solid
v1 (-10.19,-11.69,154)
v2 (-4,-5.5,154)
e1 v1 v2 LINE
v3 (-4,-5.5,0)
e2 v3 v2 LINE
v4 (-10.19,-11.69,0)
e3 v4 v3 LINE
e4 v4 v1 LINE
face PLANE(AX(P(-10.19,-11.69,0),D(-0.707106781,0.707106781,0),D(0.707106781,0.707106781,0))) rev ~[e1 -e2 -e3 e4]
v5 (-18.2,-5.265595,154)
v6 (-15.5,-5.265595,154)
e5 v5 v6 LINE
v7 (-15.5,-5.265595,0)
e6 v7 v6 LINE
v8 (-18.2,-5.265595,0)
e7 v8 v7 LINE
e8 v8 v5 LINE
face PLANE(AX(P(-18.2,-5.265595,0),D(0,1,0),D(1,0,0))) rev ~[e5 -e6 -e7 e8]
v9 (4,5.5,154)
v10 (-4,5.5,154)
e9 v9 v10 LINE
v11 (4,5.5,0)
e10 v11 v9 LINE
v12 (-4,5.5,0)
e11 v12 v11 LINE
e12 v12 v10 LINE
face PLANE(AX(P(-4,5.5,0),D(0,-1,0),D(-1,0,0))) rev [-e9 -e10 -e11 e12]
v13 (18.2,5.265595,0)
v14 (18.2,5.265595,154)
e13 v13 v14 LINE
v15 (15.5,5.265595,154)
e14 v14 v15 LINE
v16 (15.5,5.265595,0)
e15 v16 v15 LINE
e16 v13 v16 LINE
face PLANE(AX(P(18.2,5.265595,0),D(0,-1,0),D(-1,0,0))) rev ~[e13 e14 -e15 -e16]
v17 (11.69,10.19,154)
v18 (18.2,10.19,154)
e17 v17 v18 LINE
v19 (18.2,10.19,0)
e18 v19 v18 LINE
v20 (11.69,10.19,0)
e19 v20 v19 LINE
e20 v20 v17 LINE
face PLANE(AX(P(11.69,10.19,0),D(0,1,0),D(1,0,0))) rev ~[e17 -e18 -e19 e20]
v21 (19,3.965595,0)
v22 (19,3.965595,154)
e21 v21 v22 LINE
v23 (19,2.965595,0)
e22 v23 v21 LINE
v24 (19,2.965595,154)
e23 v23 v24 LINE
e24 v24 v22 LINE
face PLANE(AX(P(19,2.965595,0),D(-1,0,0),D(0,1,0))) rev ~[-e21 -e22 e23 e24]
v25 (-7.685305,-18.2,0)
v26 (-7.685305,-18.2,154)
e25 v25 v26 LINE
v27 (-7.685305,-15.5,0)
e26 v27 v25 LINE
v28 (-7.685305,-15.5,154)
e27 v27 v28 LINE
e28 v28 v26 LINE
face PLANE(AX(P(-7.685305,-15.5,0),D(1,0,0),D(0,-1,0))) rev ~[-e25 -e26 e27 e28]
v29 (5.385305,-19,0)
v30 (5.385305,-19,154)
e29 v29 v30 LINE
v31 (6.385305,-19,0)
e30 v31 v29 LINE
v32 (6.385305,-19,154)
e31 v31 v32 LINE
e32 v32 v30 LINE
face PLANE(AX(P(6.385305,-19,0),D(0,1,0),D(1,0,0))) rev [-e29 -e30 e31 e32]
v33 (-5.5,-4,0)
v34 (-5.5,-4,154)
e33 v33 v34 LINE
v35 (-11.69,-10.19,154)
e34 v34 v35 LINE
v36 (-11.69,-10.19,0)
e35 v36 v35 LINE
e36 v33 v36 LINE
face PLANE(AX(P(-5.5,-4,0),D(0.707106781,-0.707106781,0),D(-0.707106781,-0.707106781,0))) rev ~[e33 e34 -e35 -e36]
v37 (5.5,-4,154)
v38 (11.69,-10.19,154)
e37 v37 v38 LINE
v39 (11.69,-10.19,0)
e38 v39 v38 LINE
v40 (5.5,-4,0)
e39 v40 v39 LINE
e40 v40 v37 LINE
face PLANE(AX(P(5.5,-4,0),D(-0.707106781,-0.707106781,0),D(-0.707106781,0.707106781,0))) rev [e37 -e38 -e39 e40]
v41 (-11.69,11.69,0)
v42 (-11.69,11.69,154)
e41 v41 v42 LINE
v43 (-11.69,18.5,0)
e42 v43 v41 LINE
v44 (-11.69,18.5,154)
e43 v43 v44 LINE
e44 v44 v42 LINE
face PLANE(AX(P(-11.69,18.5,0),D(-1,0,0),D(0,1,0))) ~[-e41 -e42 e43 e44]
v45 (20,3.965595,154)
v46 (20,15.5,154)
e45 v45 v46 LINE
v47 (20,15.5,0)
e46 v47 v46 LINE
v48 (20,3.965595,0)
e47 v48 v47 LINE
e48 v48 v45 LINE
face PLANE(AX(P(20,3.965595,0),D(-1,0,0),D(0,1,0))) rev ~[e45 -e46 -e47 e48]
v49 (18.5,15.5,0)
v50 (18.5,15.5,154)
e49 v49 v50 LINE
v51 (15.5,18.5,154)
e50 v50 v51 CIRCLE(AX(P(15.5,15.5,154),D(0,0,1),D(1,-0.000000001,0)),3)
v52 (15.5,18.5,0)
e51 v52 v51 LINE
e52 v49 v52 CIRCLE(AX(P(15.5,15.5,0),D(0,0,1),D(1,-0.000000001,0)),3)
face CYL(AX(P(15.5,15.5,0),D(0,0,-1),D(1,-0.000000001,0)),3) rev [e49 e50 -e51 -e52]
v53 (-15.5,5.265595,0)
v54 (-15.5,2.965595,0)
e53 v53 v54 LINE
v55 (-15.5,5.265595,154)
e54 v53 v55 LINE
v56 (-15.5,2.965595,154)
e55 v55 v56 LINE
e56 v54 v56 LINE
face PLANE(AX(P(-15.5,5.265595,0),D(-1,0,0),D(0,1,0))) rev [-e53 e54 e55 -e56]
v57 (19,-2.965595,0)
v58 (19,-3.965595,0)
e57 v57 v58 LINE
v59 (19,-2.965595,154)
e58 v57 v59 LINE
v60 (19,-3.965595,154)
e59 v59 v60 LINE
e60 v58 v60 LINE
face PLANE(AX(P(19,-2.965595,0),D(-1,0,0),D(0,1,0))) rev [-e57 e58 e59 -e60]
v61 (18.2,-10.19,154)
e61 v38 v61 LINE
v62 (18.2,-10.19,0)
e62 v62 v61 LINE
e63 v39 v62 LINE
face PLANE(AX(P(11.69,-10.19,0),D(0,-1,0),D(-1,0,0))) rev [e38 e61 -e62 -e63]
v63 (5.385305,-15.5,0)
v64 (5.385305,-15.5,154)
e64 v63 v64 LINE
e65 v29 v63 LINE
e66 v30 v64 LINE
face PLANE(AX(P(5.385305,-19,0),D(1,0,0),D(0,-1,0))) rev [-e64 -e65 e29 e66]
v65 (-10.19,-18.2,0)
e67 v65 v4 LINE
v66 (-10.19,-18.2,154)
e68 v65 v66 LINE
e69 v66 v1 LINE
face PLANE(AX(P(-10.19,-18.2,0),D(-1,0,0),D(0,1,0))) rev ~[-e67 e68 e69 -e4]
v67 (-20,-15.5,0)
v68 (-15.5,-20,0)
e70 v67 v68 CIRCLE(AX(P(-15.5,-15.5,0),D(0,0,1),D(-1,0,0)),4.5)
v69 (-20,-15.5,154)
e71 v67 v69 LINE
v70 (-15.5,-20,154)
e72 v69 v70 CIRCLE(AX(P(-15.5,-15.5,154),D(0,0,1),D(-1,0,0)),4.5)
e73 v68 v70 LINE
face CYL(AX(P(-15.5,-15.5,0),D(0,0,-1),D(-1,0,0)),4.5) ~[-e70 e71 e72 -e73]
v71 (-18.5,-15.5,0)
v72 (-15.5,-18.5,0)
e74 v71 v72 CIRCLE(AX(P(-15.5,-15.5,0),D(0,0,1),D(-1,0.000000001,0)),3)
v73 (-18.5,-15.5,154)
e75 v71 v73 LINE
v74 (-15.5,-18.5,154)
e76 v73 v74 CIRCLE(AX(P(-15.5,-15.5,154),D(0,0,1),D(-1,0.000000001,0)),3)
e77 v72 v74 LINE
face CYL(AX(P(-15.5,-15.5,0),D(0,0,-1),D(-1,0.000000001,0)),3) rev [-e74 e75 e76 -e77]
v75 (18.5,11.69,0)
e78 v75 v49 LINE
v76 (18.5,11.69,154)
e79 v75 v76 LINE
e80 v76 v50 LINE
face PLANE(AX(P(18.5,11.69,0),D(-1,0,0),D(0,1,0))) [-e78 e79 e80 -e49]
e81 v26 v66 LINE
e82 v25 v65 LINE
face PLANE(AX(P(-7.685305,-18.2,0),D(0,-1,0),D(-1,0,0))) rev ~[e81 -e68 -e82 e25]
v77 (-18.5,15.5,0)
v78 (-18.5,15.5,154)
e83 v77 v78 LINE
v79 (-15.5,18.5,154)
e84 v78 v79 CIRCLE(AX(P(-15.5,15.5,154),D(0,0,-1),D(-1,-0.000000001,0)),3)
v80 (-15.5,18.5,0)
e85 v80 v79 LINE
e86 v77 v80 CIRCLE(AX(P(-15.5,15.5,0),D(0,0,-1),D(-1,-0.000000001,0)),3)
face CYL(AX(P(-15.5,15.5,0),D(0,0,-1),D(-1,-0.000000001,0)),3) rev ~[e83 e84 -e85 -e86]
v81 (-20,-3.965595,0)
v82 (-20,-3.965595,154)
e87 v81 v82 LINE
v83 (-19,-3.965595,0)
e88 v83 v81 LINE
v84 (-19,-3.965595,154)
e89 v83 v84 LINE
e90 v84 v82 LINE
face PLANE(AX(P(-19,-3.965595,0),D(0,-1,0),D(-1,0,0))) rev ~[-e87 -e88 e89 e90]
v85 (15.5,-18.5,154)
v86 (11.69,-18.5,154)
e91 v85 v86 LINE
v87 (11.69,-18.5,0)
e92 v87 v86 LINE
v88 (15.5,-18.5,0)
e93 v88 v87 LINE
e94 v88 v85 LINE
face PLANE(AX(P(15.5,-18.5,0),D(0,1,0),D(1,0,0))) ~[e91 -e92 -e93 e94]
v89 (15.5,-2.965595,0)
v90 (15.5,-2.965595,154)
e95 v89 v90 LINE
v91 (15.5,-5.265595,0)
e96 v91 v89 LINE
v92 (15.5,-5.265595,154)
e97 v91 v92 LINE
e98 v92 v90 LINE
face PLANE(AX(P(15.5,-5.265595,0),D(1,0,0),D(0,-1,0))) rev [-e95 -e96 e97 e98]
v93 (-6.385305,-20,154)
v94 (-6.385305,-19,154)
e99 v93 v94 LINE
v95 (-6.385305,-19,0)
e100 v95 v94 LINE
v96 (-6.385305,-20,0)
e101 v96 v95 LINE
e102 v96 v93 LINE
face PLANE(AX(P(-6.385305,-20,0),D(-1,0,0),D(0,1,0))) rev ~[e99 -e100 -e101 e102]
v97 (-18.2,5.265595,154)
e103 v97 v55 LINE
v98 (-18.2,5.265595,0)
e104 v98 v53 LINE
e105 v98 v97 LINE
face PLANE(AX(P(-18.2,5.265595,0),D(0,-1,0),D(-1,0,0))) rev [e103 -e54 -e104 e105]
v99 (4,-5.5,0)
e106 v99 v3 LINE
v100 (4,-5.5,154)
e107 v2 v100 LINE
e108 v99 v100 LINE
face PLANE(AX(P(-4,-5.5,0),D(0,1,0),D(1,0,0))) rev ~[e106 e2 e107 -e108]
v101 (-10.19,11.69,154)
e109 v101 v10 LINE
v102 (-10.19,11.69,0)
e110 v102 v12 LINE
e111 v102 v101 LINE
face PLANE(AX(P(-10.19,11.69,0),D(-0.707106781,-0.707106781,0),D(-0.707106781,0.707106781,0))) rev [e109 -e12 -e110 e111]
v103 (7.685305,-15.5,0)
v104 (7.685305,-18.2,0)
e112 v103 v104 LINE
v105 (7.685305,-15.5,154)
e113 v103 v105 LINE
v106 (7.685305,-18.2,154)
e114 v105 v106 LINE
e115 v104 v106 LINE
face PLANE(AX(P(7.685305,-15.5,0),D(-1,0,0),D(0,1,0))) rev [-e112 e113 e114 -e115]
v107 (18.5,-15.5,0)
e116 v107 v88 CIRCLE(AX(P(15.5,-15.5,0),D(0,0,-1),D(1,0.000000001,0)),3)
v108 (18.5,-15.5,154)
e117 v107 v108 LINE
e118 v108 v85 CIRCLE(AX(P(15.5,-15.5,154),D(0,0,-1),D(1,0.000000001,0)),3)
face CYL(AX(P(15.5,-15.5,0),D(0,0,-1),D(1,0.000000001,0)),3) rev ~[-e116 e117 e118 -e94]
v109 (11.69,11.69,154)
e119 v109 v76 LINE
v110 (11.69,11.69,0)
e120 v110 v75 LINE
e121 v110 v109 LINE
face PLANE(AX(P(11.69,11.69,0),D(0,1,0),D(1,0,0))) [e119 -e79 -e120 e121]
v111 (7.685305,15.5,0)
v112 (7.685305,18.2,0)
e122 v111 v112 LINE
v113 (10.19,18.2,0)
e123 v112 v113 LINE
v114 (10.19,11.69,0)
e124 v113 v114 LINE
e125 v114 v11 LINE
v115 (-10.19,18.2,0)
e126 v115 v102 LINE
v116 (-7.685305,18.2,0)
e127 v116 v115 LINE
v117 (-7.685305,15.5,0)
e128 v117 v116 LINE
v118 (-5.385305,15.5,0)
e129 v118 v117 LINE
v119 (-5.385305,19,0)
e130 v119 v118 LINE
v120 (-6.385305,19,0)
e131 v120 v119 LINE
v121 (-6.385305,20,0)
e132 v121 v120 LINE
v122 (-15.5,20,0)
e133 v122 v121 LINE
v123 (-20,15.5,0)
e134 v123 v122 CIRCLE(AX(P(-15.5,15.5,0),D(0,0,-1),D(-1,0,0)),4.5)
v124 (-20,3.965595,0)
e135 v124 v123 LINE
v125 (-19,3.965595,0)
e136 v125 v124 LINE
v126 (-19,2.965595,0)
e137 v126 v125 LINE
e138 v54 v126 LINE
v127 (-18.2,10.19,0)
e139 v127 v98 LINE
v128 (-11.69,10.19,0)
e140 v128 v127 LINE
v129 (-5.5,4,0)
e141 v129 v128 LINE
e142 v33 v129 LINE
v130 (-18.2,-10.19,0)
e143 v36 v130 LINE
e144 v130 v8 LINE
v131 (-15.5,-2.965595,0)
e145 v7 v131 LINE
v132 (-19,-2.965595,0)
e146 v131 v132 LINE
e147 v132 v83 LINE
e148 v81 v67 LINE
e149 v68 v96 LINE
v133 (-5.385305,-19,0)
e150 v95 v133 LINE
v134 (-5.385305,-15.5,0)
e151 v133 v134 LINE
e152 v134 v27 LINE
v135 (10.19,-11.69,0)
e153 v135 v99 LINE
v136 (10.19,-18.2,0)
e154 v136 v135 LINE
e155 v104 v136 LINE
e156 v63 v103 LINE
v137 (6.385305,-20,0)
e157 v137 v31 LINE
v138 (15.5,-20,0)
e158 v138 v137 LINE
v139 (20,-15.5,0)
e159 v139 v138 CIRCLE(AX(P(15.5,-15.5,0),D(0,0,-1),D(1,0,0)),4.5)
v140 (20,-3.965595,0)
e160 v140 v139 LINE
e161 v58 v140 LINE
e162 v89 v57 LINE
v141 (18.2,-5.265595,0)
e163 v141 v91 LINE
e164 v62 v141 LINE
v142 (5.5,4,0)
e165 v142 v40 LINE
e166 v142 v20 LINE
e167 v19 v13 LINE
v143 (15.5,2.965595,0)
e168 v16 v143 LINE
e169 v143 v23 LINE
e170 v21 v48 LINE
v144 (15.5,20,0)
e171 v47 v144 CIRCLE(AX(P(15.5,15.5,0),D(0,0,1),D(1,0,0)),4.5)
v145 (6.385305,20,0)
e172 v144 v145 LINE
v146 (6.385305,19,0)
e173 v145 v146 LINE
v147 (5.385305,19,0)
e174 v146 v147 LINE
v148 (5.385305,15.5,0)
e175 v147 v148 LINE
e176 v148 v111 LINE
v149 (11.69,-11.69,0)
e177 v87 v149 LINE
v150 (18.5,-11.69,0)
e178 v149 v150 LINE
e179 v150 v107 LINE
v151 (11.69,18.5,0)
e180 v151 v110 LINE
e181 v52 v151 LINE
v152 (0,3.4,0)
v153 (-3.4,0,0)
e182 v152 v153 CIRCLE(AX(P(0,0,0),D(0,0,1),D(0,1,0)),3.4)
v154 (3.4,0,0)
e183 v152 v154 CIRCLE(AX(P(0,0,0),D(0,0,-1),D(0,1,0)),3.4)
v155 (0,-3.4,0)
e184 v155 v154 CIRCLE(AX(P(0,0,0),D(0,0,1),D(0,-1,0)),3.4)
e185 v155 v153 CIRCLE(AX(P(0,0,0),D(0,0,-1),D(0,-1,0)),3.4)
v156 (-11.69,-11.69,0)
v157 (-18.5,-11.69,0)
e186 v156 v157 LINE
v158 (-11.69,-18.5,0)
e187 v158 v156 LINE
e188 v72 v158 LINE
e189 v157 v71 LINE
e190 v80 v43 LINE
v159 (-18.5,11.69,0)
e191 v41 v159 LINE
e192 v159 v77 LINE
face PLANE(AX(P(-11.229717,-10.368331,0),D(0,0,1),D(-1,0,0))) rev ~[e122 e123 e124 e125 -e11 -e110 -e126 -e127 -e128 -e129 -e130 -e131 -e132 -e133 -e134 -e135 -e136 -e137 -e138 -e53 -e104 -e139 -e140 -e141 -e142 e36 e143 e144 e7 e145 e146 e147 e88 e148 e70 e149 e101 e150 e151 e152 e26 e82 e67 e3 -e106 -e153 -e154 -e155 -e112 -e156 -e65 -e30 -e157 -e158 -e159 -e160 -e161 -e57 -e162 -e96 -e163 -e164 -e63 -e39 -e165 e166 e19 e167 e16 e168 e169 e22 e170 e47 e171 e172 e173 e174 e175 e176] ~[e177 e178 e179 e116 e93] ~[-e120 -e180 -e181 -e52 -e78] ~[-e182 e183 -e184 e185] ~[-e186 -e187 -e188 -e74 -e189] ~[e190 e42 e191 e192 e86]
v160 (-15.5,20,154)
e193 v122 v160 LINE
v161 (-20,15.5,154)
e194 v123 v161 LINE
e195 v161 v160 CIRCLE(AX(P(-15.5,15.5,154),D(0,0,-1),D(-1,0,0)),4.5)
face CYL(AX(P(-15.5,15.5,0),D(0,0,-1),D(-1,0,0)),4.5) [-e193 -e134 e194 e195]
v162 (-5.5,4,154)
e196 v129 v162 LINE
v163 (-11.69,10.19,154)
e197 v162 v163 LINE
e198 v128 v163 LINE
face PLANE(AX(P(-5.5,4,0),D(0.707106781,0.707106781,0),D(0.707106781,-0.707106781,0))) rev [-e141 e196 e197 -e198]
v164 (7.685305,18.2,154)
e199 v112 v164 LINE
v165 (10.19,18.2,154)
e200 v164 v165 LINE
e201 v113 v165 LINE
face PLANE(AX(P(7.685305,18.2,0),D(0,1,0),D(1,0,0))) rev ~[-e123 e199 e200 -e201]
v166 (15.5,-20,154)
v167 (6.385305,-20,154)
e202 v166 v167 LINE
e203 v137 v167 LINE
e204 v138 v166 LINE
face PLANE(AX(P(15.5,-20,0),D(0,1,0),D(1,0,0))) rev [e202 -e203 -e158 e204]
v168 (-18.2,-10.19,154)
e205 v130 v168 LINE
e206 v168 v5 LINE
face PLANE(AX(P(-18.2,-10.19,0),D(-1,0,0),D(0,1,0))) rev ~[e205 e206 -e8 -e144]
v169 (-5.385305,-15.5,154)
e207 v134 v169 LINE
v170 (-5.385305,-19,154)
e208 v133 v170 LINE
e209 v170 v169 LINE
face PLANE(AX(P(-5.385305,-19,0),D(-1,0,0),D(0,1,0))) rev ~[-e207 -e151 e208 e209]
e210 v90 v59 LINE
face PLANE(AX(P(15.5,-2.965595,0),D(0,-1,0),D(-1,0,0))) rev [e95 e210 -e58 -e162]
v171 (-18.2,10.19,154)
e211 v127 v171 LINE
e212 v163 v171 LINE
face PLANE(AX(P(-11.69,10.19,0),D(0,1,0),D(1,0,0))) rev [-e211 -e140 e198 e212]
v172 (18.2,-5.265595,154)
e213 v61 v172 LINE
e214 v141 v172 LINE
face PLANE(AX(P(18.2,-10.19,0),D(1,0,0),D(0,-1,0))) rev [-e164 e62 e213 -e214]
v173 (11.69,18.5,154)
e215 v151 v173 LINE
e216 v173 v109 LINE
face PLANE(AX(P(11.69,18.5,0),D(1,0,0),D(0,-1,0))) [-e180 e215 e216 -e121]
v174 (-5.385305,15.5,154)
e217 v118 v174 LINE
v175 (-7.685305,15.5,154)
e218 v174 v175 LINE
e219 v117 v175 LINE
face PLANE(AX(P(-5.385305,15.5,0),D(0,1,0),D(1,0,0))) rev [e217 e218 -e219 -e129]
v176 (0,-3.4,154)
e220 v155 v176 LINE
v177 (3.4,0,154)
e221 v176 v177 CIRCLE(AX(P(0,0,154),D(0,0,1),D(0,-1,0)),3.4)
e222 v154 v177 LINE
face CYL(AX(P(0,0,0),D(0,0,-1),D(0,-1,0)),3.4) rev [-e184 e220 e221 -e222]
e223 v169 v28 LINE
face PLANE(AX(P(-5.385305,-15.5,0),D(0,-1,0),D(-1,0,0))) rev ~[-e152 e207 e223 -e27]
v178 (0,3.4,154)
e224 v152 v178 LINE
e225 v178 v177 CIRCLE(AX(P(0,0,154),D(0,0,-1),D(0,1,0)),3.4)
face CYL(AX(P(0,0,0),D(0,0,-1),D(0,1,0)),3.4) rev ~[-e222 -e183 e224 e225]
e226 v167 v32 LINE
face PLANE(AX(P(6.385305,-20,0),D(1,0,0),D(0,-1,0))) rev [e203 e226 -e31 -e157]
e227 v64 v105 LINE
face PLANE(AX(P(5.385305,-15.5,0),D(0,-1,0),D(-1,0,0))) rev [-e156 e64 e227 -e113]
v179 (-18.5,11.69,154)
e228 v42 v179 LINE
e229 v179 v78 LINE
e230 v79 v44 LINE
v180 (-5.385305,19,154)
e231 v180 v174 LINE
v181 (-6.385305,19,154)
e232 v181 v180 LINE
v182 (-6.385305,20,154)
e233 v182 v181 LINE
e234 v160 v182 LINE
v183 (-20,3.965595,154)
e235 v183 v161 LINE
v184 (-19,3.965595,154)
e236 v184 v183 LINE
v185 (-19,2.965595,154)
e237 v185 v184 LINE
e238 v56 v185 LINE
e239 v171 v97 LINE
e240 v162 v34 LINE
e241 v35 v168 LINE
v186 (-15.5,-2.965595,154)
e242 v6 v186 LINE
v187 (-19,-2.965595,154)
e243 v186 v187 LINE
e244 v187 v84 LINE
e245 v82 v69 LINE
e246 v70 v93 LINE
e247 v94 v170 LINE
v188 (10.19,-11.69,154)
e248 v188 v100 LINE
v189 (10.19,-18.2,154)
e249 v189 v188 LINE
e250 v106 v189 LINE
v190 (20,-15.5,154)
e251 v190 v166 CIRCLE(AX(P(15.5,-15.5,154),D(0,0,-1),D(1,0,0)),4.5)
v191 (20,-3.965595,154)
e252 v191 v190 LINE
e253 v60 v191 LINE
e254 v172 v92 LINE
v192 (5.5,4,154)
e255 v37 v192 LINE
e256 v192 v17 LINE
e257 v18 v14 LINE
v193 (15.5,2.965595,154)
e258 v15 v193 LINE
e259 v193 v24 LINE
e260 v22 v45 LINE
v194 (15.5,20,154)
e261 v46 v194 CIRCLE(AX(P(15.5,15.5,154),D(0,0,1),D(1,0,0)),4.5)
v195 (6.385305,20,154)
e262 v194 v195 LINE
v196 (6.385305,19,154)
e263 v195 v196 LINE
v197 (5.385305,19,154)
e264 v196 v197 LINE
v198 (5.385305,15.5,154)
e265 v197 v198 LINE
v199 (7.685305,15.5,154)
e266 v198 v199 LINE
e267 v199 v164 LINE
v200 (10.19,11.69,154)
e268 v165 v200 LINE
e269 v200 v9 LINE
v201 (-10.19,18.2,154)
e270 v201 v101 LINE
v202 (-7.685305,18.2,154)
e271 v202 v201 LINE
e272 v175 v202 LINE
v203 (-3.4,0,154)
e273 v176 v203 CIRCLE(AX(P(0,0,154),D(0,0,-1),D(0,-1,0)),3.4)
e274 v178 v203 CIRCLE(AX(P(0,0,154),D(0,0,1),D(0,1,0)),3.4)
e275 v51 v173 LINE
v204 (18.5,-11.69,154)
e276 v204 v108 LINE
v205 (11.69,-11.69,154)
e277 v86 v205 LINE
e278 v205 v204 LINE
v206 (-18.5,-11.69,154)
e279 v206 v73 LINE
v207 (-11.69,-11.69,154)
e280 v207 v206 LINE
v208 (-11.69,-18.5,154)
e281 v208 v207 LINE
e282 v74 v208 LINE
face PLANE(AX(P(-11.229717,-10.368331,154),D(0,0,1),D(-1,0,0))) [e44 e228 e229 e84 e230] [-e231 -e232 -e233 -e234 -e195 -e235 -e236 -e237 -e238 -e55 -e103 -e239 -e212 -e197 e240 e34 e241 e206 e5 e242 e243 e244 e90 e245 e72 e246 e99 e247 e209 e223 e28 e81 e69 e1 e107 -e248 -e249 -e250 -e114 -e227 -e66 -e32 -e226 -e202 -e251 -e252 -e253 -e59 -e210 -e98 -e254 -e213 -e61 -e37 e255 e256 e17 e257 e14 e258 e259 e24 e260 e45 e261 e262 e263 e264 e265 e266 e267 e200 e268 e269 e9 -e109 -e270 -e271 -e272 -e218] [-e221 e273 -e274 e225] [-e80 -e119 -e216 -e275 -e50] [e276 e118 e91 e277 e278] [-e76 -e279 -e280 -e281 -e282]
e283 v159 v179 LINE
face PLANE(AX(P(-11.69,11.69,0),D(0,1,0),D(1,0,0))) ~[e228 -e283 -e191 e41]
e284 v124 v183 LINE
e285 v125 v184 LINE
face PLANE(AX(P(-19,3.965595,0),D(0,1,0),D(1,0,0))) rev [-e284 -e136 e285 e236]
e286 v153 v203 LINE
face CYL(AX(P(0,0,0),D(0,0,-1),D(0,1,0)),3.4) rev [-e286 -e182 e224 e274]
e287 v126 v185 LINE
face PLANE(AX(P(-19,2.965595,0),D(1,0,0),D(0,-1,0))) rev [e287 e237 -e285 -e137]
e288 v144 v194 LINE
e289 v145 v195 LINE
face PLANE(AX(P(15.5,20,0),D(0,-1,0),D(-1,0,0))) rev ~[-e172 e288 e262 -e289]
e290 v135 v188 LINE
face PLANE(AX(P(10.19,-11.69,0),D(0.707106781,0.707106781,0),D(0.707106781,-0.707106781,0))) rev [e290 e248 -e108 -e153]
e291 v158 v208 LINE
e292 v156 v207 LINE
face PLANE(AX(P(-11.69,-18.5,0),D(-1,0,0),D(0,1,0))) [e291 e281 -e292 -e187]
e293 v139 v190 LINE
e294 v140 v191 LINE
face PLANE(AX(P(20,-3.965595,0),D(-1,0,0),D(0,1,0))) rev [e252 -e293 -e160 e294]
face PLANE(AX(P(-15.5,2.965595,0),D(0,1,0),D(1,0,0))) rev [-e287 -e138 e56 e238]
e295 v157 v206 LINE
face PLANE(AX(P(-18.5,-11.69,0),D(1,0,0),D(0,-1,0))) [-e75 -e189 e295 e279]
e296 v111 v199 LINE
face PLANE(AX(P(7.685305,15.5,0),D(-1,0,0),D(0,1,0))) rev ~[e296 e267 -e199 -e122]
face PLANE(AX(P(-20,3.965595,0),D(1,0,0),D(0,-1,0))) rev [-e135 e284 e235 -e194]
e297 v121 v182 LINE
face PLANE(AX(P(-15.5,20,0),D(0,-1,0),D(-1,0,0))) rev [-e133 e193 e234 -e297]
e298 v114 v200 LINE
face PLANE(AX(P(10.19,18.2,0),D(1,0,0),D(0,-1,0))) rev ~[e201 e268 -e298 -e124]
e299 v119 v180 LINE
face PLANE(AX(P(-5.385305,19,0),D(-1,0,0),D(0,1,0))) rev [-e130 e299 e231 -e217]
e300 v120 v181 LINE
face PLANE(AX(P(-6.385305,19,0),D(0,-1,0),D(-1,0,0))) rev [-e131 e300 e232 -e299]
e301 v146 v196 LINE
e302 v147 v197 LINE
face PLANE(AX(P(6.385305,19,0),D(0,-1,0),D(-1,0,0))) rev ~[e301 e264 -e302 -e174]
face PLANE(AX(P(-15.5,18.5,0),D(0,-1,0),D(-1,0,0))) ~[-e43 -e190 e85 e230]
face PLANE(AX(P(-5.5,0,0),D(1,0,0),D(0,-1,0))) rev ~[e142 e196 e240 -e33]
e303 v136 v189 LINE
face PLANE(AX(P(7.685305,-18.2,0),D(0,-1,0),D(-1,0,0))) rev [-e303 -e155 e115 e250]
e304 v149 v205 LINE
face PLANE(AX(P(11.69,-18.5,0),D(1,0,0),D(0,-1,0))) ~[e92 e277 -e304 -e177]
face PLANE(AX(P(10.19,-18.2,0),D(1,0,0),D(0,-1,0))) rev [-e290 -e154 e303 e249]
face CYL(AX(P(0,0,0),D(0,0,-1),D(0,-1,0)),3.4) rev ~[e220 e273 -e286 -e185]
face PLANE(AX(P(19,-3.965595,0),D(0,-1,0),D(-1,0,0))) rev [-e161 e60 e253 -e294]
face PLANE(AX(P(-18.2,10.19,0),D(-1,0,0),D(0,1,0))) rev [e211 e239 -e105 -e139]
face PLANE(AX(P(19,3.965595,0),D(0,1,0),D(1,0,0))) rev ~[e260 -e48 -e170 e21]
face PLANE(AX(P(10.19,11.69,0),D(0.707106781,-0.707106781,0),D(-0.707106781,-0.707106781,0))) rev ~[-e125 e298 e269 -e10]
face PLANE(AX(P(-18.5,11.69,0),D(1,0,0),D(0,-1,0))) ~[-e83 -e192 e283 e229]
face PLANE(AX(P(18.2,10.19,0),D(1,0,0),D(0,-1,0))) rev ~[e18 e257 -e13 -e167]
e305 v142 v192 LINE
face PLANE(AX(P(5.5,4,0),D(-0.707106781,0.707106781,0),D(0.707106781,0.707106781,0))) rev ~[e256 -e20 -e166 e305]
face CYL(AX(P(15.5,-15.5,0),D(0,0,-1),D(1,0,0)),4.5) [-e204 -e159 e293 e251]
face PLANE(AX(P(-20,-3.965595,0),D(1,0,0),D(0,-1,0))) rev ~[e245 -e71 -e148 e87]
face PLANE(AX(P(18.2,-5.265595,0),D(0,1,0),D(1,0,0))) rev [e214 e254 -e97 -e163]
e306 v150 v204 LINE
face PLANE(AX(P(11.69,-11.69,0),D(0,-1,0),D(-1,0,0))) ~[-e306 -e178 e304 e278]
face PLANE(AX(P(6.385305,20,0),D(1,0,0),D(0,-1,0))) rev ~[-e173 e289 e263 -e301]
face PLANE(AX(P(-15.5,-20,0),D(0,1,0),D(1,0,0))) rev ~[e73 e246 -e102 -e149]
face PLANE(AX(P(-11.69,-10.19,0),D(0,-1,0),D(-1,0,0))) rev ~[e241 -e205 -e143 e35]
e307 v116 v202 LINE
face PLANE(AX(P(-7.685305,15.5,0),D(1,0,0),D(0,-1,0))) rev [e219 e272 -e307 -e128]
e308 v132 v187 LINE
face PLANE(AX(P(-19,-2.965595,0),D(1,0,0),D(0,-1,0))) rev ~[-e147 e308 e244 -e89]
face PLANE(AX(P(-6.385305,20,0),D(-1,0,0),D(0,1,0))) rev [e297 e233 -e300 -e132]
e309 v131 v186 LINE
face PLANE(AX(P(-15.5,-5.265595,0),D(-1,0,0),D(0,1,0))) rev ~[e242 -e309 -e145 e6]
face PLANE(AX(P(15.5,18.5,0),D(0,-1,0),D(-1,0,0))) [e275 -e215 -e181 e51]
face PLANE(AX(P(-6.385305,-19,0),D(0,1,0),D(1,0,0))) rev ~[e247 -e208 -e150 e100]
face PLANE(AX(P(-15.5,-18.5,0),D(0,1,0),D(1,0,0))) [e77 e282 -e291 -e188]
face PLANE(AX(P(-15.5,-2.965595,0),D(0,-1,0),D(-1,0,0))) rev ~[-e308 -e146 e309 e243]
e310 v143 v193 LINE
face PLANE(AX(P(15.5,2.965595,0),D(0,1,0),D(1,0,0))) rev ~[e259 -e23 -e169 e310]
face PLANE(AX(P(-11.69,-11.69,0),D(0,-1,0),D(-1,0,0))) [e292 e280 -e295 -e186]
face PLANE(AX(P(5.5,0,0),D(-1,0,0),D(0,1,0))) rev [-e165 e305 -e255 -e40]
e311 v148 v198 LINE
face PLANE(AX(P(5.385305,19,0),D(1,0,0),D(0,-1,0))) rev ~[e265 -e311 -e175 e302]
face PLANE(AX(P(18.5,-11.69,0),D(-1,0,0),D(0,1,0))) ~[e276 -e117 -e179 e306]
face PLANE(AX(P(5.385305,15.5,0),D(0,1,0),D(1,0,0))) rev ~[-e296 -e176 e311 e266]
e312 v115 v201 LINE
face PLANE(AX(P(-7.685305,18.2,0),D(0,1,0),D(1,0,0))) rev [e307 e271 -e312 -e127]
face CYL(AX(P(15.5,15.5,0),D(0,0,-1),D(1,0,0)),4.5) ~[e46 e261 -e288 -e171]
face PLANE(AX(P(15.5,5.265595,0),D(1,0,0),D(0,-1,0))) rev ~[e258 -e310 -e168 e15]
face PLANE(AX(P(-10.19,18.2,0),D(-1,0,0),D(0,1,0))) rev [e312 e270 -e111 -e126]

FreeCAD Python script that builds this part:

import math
import FreeCAD as App
import Part
import Sketcher
Q = App.Units.Quantity

doc = App.newDocument("Part")
body = doc.addObject("PartDesign::Body", "Body")

# Sketch on XY plane
sketch1 = body.newObject("Sketcher::SketchObject", "Sketch")
sketch1.AttachmentSupport = (doc.getObject("XY_Plane"), [""])
sketch1.MapMode = "FlatFace"
sketch1.addGeometry([
    Part.LineSegment(App.Vector(3.4, 0, 0), App.Vector(5.5, 0, 0)),  # 0
    Part.LineSegment(App.Vector(5.5, 0, 0), App.Vector(5.5, 4, 0)),  # 1
    Part.LineSegment(App.Vector(5.5, 4, 0), App.Vector(11.69, 10.19, 0)),  # 2
    Part.LineSegment(App.Vector(11.69, 10.19, 0), App.Vector(18.2, 10.19, 0)),  # 3
    Part.LineSegment(App.Vector(18.2, 10.19, 0), App.Vector(18.2, 5.265595, 0)),  # 4
    Part.LineSegment(App.Vector(18.2, 5.265595, 0), App.Vector(15.5, 5.265595, 0)),  # 5
    Part.LineSegment(App.Vector(15.5, 5.265595, 0), App.Vector(15.5, 2.965595, 0)),  # 6
    Part.LineSegment(App.Vector(15.5, 2.965595, 0), App.Vector(19, 2.965595, 0)),  # 7
    Part.LineSegment(App.Vector(19, 2.965595, 0), App.Vector(19, 3.965595, 0)),  # 8
    Part.LineSegment(App.Vector(19, 3.965595, 0), App.Vector(20, 3.965595, 0)),  # 9
    Part.LineSegment(App.Vector(20, 3.965595, 0), App.Vector(20, 15.5, 0)),  # 10
    Part.ArcOfCircle(Part.Circle(App.Vector(15.5, 15.5, 0), App.Vector(0, 0, 1), 4.5), math.radians(0), math.radians(90)),  # 11
    Part.LineSegment(App.Vector(15.5, 20, 0), App.Vector(6.385305, 20, 0)),  # 12
    Part.LineSegment(App.Vector(6.385305, 20, 0), App.Vector(6.385305, 19, 0)),  # 13
    Part.LineSegment(App.Vector(6.385305, 19, 0), App.Vector(5.385305, 19, 0)),  # 14
    Part.LineSegment(App.Vector(5.385305, 19, 0), App.Vector(5.385305, 15.5, 0)),  # 15
    Part.LineSegment(App.Vector(5.385305, 15.5, 0), App.Vector(7.685305, 15.5, 0)),  # 16
    Part.LineSegment(App.Vector(7.685305, 15.5, 0), App.Vector(7.685305, 18.2, 0)),  # 17
    Part.LineSegment(App.Vector(7.685305, 18.2, 0), App.Vector(10.19, 18.2, 0)),  # 18
    Part.LineSegment(App.Vector(10.19, 18.2, 0), App.Vector(10.19, 11.69, 0)),  # 19
    Part.LineSegment(App.Vector(10.19, 11.69, 0), App.Vector(4, 5.5, 0)),  # 20
    Part.LineSegment(App.Vector(4, 5.5, 0), App.Vector(0, 5.5, 0)),  # 21
    Part.LineSegment(App.Vector(0, 5.5, 0), App.Vector(0, 3.4, 0)),  # 22
    Part.ArcOfCircle(Part.Circle(App.Vector(0, 0, 0), App.Vector(0, 0, 1), 3.4), math.radians(0), math.radians(90)),  # 23
    Part.LineSegment(App.Vector(18.5, 15.5, 0), App.Vector(18.5, 11.69, 0)),  # 24
    Part.LineSegment(App.Vector(18.5, 11.69, 0), App.Vector(11.69, 11.69, 0)),  # 25
    Part.LineSegment(App.Vector(11.69, 11.69, 0), App.Vector(11.69, 18.5, 0)),  # 26
    Part.LineSegment(App.Vector(11.69, 18.5, 0), App.Vector(15.5, 18.5, 0)),  # 27
    Part.ArcOfCircle(Part.Circle(App.Vector(15.5, 15.5, 0), App.Vector(0, 0, 1), 3), math.radians(0), math.radians(90)),  # 28
], False)
sketch1.addConstraint([
    Sketcher.Constraint("Coincident", 0, 2, 1, 1),
    Sketcher.Constraint("Coincident", 1, 2, 2, 1),
    Sketcher.Constraint("Coincident", 2, 2, 3, 1),
    Sketcher.Constraint("Coincident", 3, 2, 4, 1),
    Sketcher.Constraint("Coincident", 4, 2, 5, 1),
    Sketcher.Constraint("Coincident", 5, 2, 6, 1),
    Sketcher.Constraint("Coincident", 6, 2, 7, 1),
    Sketcher.Constraint("Coincident", 7, 2, 8, 1),
    Sketcher.Constraint("Coincident", 8, 2, 9, 1),
    Sketcher.Constraint("Coincident", 9, 2, 10, 1),
    Sketcher.Constraint("Tangent", 10, 2, 11, 1),
    Sketcher.Constraint("Tangent", 11, 2, 12, 1),
    Sketcher.Constraint("Coincident", 12, 2, 13, 1),
    Sketcher.Constraint("Coincident", 13, 2, 14, 1),
    Sketcher.Constraint("Coincident", 14, 2, 15, 1),
    Sketcher.Constraint("Coincident", 15, 2, 16, 1),
    Sketcher.Constraint("Coincident", 16, 2, 17, 1),
    Sketcher.Constraint("Coincident", 17, 2, 18, 1),
    Sketcher.Constraint("Coincident", 18, 2, 19, 1),
    Sketcher.Constraint("Coincident", 19, 2, 20, 1),
    Sketcher.Constraint("Coincident", 20, 2, 21, 1),
    Sketcher.Constraint("Coincident", 21, 2, 22, 1),
    Sketcher.Constraint("Coincident", 22, 2, 23, 2),
    Sketcher.Constraint("Coincident", 23, 1, 0, 1),
    Sketcher.Constraint("Coincident", 24, 2, 25, 1),
    Sketcher.Constraint("Coincident", 25, 2, 26, 1),
    Sketcher.Constraint("Coincident", 26, 2, 27, 1),
    Sketcher.Constraint("Tangent", 27, 2, 28, 2),
    Sketcher.Constraint("Tangent", 28, 1, 24, 1),
    Sketcher.Constraint("Horizontal", 0),
    Sketcher.Constraint("Vertical", 1),
    Sketcher.Constraint("Horizontal", 3),
    Sketcher.Constraint("Vertical", 4),
    Sketcher.Constraint("Horizontal", 5),
    Sketcher.Constraint("Vertical", 6),
    Sketcher.Constraint("Horizontal", 7),
    Sketcher.Constraint("Vertical", 8),
    Sketcher.Constraint("Horizontal", 9),
    Sketcher.Constraint("Vertical", 10),
    Sketcher.Constraint("Horizontal", 12),
    Sketcher.Constraint("Vertical", 13),
    Sketcher.Constraint("Horizontal", 14),
    Sketcher.Constraint("Vertical", 15),
    Sketcher.Constraint("Horizontal", 16),
    Sketcher.Constraint("Vertical", 17),
    Sketcher.Constraint("Horizontal", 18),
    Sketcher.Constraint("Vertical", 19),
    Sketcher.Constraint("Horizontal", 21),
    Sketcher.Constraint("Vertical", 22),
    Sketcher.Constraint("Vertical", 24),
    Sketcher.Constraint("Horizontal", 25),
    Sketcher.Constraint("Vertical", 26),
    Sketcher.Constraint("Horizontal", 27),
    Sketcher.Constraint("Coincident", 23, 3, -1, 1),
    Sketcher.Constraint("Coincident", 28, 3, 11, 3),
    Sketcher.Constraint("PointOnObject", 0, 2, -1),
    Sketcher.Constraint("PointOnObject", 21, 2, -2),
    Sketcher.Constraint("Parallel", 2, 20),
    Sketcher.Constraint("Horizontal", 10, 2, 15, 2),
    Sketcher.Constraint("Horizontal", 19, 2, 24, 2),
    Sketcher.Constraint("Vertical", 28, 3, 5, 2),
    Sketcher.Constraint("Vertical", 2, 2, 25, 2),
    Sketcher.Constraint("Equal", 9, 14),
    Sketcher.Constraint("Equal", 21, 1),
    Sketcher.Constraint("Equal", 16, 6),
    Sketcher.Constraint("Equal", 14, 8),
    Sketcher.Constraint("Equal", 8, 13),
    Sketcher.Constraint("Equal", 5, 17),
    Sketcher.Constraint("Equal", 3, 19),
    Sketcher.Constraint("Equal", 0, 22),
    Sketcher.Constraint("Equal", 2, 20),
    Sketcher.Constraint("Radius", 28, 3.0),
    Sketcher.Constraint("Radius", 11, 4.5),
    Sketcher.Constraint("Radius", 23, 3.4),
    Sketcher.Constraint("DistanceX", 9, 1, 9, 2, 1.0),
    Sketcher.Constraint("DistanceX", 21, 2, 21, 1, 4.0),
    Sketcher.Constraint("Angle", 2, Q("45 deg")),
    Sketcher.Constraint("DistanceX", 0, 1, 0, 2, 2.1),
    Sketcher.Constraint("DistanceX", 5, 2, 5, 1, 2.7),
    Sketcher.Constraint("DistanceX", 16, 1, 16, 2, 2.3),
    Sketcher.Constraint("DistanceX", -1, 1, 7, 2, 19.0),
    Sketcher.Constraint("DistanceX", 3, 1, 3, 2, 6.51),
    Sketcher.Constraint("DistanceX", 12, 2, 12, 1, 9.114695),
    Sketcher.Constraint("DistanceY", 4, 2, 4, 1, 4.924405),
])
pad1 = body.newObject("PartDesign::Pad", "Pad")
pad1.Profile = sketch1
pad1.Length = 154
doc.recompute()

mirrored = body.newObject("PartDesign::Mirrored", "Mirrored")
mirrored.Originals = [pad1]
mirrored.MirrorPlane = (doc.getObject("XZ_Plane"), [""])
body.Tip = mirrored
doc.recompute()

mirrored2 = body.newObject("PartDesign::Mirrored", "Mirrored001")
mirrored2.Originals = [pad1]
mirrored2.MirrorPlane = (doc.getObject("YZ_Plane"), [""])
body.Tip = mirrored2

# Sketch on XY plane
sketch2 = body.newObject("Sketcher::SketchObject", "Sketch001")
sketch2.AttachmentSupport = (doc.getObject("XY_Plane"), [""])
sketch2.MapMode = "FlatFace"
sketch2.addGeometry([
    Part.LineSegment(App.Vector(-3.4, 0, 0), App.Vector(-5.5, 0, 0)),  # 0
    Part.LineSegment(App.Vector(-5.5, 0, 0), App.Vector(-5.5, -4, 0)),  # 1
    Part.LineSegment(App.Vector(-5.5, -4, 0), App.Vector(-11.69, -10.19, 0)),  # 2
    Part.LineSegment(App.Vector(-11.69, -10.19, 0), App.Vector(-18.2, -10.19, 0)),  # 3
    Part.LineSegment(App.Vector(-18.2, -10.19, 0), App.Vector(-18.2, -5.265595, 0)),  # 4
    Part.LineSegment(App.Vector(-18.2, -5.265595, 0), App.Vector(-15.5, -5.265595, 0)),  # 5
    Part.LineSegment(App.Vector(-15.5, -5.265595, 0), App.Vector(-15.5, -2.965595, 0)),  # 6
    Part.LineSegment(App.Vector(-15.5, -2.965595, 0), App.Vector(-19, -2.965595, 0)),  # 7
    Part.LineSegment(App.Vector(-19, -2.965595, 0), App.Vector(-19, -3.965595, 0)),  # 8
    Part.LineSegment(App.Vector(-19, -3.965595, 0), App.Vector(-20, -3.965595, 0)),  # 9
    Part.LineSegment(App.Vector(-20, -3.965595, 0), App.Vector(-20, -15.5, 0)),  # 10
    Part.ArcOfCircle(Part.Circle(App.Vector(-15.5, -15.5, 0), App.Vector(0, 0, 1), 4.5), math.radians(-180), math.radians(-90)),  # 11
    Part.LineSegment(App.Vector(-15.5, -20, 0), App.Vector(-6.385305, -20, 0)),  # 12
    Part.LineSegment(App.Vector(-6.385305, -20, 0), App.Vector(-6.385305, -19, 0)),  # 13
    Part.LineSegment(App.Vector(-6.385305, -19, 0), App.Vector(-5.385305, -19, 0)),  # 14
    Part.LineSegment(App.Vector(-5.385305, -19, 0), App.Vector(-5.385305, -15.5, 0)),  # 15
    Part.LineSegment(App.Vector(-5.385305, -15.5, 0), App.Vector(-7.685305, -15.5, 0)),  # 16
    Part.LineSegment(App.Vector(-7.685305, -15.5, 0), App.Vector(-7.685305, -18.2, 0)),  # 17
    Part.LineSegment(App.Vector(-7.685305, -18.2, 0), App.Vector(-10.19, -18.2, 0)),  # 18
    Part.LineSegment(App.Vector(-10.19, -18.2, 0), App.Vector(-10.19, -11.69, 0)),  # 19
    Part.LineSegment(App.Vector(-10.19, -11.69, 0), App.Vector(-4, -5.5, 0)),  # 20
    Part.LineSegment(App.Vector(-4, -5.5, 0), App.Vector(0, -5.5, 0)),  # 21
    Part.LineSegment(App.Vector(0, -5.5, 0), App.Vector(0, -3.4, 0)),  # 22
    Part.ArcOfCircle(Part.Circle(App.Vector(0, 0, 0), App.Vector(0, 0, 1), 3.4), math.radians(180), math.radians(270)),  # 23
    Part.LineSegment(App.Vector(-18.5, -15.5, 0), App.Vector(-18.5, -11.69, 0)),  # 24
    Part.LineSegment(App.Vector(-18.5, -11.69, 0), App.Vector(-11.69, -11.69, 0)),  # 25
    Part.LineSegment(App.Vector(-11.69, -11.69, 0), App.Vector(-11.69, -18.5, 0)),  # 26
    Part.LineSegment(App.Vector(-11.69, -18.5, 0), App.Vector(-15.5, -18.5, 0)),  # 27
    Part.ArcOfCircle(Part.Circle(App.Vector(-15.5, -15.5, 0), App.Vector(0, 0, 1), 3), math.radians(180), math.radians(270)),  # 28
], False)
sketch2.addConstraint([
    Sketcher.Constraint("Coincident", 0, 2, 1, 1),
    Sketcher.Constraint("Coincident", 1, 2, 2, 1),
    Sketcher.Constraint("Coincident", 2, 2, 3, 1),
    Sketcher.Constraint("Coincident", 3, 2, 4, 1),
    Sketcher.Constraint("Coincident", 4, 2, 5, 1),
    Sketcher.Constraint("Coincident", 5, 2, 6, 1),
    Sketcher.Constraint("Coincident", 6, 2, 7, 1),
    Sketcher.Constraint("Coincident", 7, 2, 8, 1),
    Sketcher.Constraint("Coincident", 8, 2, 9, 1),
    Sketcher.Constraint("Coincident", 9, 2, 10, 1),
    Sketcher.Constraint("Tangent", 10, 2, 11, 1),
    Sketcher.Constraint("Tangent", 11, 2, 12, 1),
    Sketcher.Constraint("Coincident", 12, 2, 13, 1),
    Sketcher.Constraint("Coincident", 13, 2, 14, 1),
    Sketcher.Constraint("Coincident", 14, 2, 15, 1),
    Sketcher.Constraint("Coincident", 15, 2, 16, 1),
    Sketcher.Constraint("Coincident", 16, 2, 17, 1),
    Sketcher.Constraint("Coincident", 17, 2, 18, 1),
    Sketcher.Constraint("Coincident", 18, 2, 19, 1),
    Sketcher.Constraint("Coincident", 19, 2, 20, 1),
    Sketcher.Constraint("Coincident", 20, 2, 21, 1),
    Sketcher.Constraint("Coincident", 21, 2, 22, 1),
    Sketcher.Constraint("Coincident", 22, 2, 23, 2),
    Sketcher.Constraint("Coincident", 23, 1, 0, 1),
    Sketcher.Constraint("Coincident", 24, 2, 25, 1),
    Sketcher.Constraint("Coincident", 25, 2, 26, 1),
    Sketcher.Constraint("Coincident", 26, 2, 27, 1),
    Sketcher.Constraint("Tangent", 27, 2, 28, 2),
    Sketcher.Constraint("Tangent", 28, 1, 24, 1),
    Sketcher.Constraint("Horizontal", 0),
    Sketcher.Constraint("Vertical", 1),
    Sketcher.Constraint("Horizontal", 3),
    Sketcher.Constraint("Vertical", 4),
    Sketcher.Constraint("Horizontal", 5),
    Sketcher.Constraint("Vertical", 6),
    Sketcher.Constraint("Horizontal", 7),
    Sketcher.Constraint("Vertical", 8),
    Sketcher.Constraint("Horizontal", 9),
    Sketcher.Constraint("Vertical", 10),
    Sketcher.Constraint("Horizontal", 12),
    Sketcher.Constraint("Vertical", 13),
    Sketcher.Constraint("Horizontal", 14),
    Sketcher.Constraint("Vertical", 15),
    Sketcher.Constraint("Horizontal", 16),
    Sketcher.Constraint("Vertical", 17),
    Sketcher.Constraint("Horizontal", 18),
    Sketcher.Constraint("Vertical", 19),
    Sketcher.Constraint("Horizontal", 21),
    Sketcher.Constraint("Vertical", 22),
    Sketcher.Constraint("Vertical", 24),
    Sketcher.Constraint("Horizontal", 25),
    Sketcher.Constraint("Vertical", 26),
    Sketcher.Constraint("Horizontal", 27),
    Sketcher.Constraint("Coincident", 23, 3, -1, 1),
    Sketcher.Constraint("Coincident", 28, 3, 11, 3),
    Sketcher.Constraint("PointOnObject", 0, 2, -1),
    Sketcher.Constraint("PointOnObject", 21, 2, -2),
    Sketcher.Constraint("Parallel", 2, 20),
    Sketcher.Constraint("Horizontal", 10, 2, 15, 2),
    Sketcher.Constraint("Horizontal", 19, 2, 24, 2),
    Sketcher.Constraint("Vertical", 28, 3, 5, 2),
    Sketcher.Constraint("Vertical", 2, 2, 25, 2),
    Sketcher.Constraint("Equal", 9, 14),
    Sketcher.Constraint("Equal", 21, 1),
    Sketcher.Constraint("Equal", 16, 6),
    Sketcher.Constraint("Equal", 14, 8),
    Sketcher.Constraint("Equal", 8, 13),
    Sketcher.Constraint("Equal", 5, 17),
    Sketcher.Constraint("Equal", 3, 19),
    Sketcher.Constraint("Equal", 0, 22),
    Sketcher.Constraint("Equal", 2, 20),
    Sketcher.Constraint("Radius", 28, 3.0),
    Sketcher.Constraint("Radius", 11, 4.5),
    Sketcher.Constraint("Radius", 23, 3.4),
    Sketcher.Constraint("DistanceX", 9, 2, 9, 1, 1.0),
    Sketcher.Constraint("DistanceX", 21, 1, 21, 2, 4.0),
    Sketcher.Constraint("Angle", 2, Q("-135 deg")),
    Sketcher.Constraint("DistanceX", 0, 2, 0, 1, 2.1),
    Sketcher.Constraint("DistanceX", 5, 1, 5, 2, 2.7),
    Sketcher.Constraint("DistanceX", 16, 2, 16, 1, 2.3),
    Sketcher.Constraint("DistanceX", 7, 2, -1, 1, 19.0),
    Sketcher.Constraint("DistanceX", 3, 2, 3, 1, 6.51),
    Sketcher.Constraint("DistanceX", 12, 1, 12, 2, 9.114695),
    Sketcher.Constraint("DistanceY", 4, 1, 4, 2, 4.924405),
])
pad2 = body.newObject("PartDesign::Pad", "Pad001")
pad2.Profile = sketch2
pad2.Length = 154

# Sketch on XY plane
sketch3 = body.newObject("Sketcher::SketchObject", "Sketch002")
sketch3.AttachmentSupport = (doc.getObject("XY_Plane"), [""])
sketch3.MapMode = "FlatFace"
sketch3.addGeometry([
    Part.LineSegment(App.Vector(5.5, 0, 0), App.Vector(3.4, 0, 0)),  # 0
    Part.ArcOfCircle(Part.Circle(App.Vector(0, 0, 0), App.Vector(0, 0, 1), 3.4), math.radians(-90), math.radians(0)),  # 1
    Part.LineSegment(App.Vector(0, -3.4, 0), App.Vector(0, -5.5, 0)),  # 2
    Part.LineSegment(App.Vector(0, -5.5, 0), App.Vector(4, -5.5, 0)),  # 3
    Part.LineSegment(App.Vector(4, -5.5, 0), App.Vector(10.19, -11.69, 0)),  # 4
    Part.LineSegment(App.Vector(10.19, -11.69, 0), App.Vector(10.19, -18.2, 0)),  # 5
    Part.LineSegment(App.Vector(10.19, -18.2, 0), App.Vector(7.685305, -18.2, 0)),  # 6
    Part.LineSegment(App.Vector(7.685305, -18.2, 0), App.Vector(7.685305, -15.5, 0)),  # 7
    Part.LineSegment(App.Vector(7.685305, -15.5, 0), App.Vector(5.385305, -15.5, 0)),  # 8
    Part.LineSegment(App.Vector(5.385305, -15.5, 0), App.Vector(5.385305, -19, 0)),  # 9
    Part.LineSegment(App.Vector(5.385305, -19, 0), App.Vector(6.385305, -19, 0)),  # 10
    Part.LineSegment(App.Vector(6.385305, -19, 0), App.Vector(6.385305, -20, 0)),  # 11
    Part.LineSegment(App.Vector(6.385305, -20, 0), App.Vector(15.5, -20, 0)),  # 12
    Part.ArcOfCircle(Part.Circle(App.Vector(15.5, -15.5, 0), App.Vector(0, 0, 1), 4.5), math.radians(-90), math.radians(0)),  # 13
    Part.LineSegment(App.Vector(20, -15.5, 0), App.Vector(20, -3.965595, 0)),  # 14
    Part.LineSegment(App.Vector(20, -3.965595, 0), App.Vector(19, -3.965595, 0)),  # 15
    Part.LineSegment(App.Vector(19, -3.965595, 0), App.Vector(19, -2.965595, 0)),  # 16
    Part.LineSegment(App.Vector(19, -2.965595, 0), App.Vector(15.5, -2.965595, 0)),  # 17
    Part.LineSegment(App.Vector(15.5, -2.965595, 0), App.Vector(15.5, -5.265595, 0)),  # 18
    Part.LineSegment(App.Vector(15.5, -5.265595, 0), App.Vector(18.2, -5.265595, 0)),  # 19
    Part.LineSegment(App.Vector(18.2, -5.265595, 0), App.Vector(18.2, -10.19, 0)),  # 20
    Part.LineSegment(App.Vector(18.2, -10.19, 0), App.Vector(11.69, -10.19, 0)),  # 21
    Part.LineSegment(App.Vector(11.69, -10.19, 0), App.Vector(5.5, -4, 0)),  # 22
    Part.LineSegment(App.Vector(5.5, -4, 0), App.Vector(5.5, 0, 0)),  # 23
    Part.LineSegment(App.Vector(18.5, -11.69, 0), App.Vector(18.5, -15.5, 0)),  # 24
    Part.ArcOfCircle(Part.Circle(App.Vector(15.5, -15.5, 0), App.Vector(0, 0, 1), 3), math.radians(-90), math.radians(0)),  # 25
    Part.LineSegment(App.Vector(15.5, -18.5, 0), App.Vector(11.69, -18.5, 0)),  # 26
    Part.LineSegment(App.Vector(11.69, -18.5, 0), App.Vector(11.69, -11.69, 0)),  # 27
    Part.LineSegment(App.Vector(11.69, -11.69, 0), App.Vector(18.5, -11.69, 0)),  # 28
], False)
sketch3.addConstraint([
    Sketcher.Constraint("Coincident", 0, 2, 1, 2),
    Sketcher.Constraint("Coincident", 1, 1, 2, 1),
    Sketcher.Constraint("Coincident", 2, 2, 3, 1),
    Sketcher.Constraint("Coincident", 3, 2, 4, 1),
    Sketcher.Constraint("Coincident", 4, 2, 5, 1),
    Sketcher.Constraint("Coincident", 5, 2, 6, 1),
    Sketcher.Constraint("Coincident", 6, 2, 7, 1),
    Sketcher.Constraint("Coincident", 7, 2, 8, 1),
    Sketcher.Constraint("Coincident", 8, 2, 9, 1),
    Sketcher.Constraint("Coincident", 9, 2, 10, 1),
    Sketcher.Constraint("Coincident", 10, 2, 11, 1),
    Sketcher.Constraint("Coincident", 11, 2, 12, 1),
    Sketcher.Constraint("Tangent", 12, 2, 13, 1),
    Sketcher.Constraint("Tangent", 13, 2, 14, 1),
    Sketcher.Constraint("Coincident", 14, 2, 15, 1),
    Sketcher.Constraint("Coincident", 15, 2, 16, 1),
    Sketcher.Constraint("Coincident", 16, 2, 17, 1),
    Sketcher.Constraint("Coincident", 17, 2, 18, 1),
    Sketcher.Constraint("Coincident", 18, 2, 19, 1),
    Sketcher.Constraint("Coincident", 19, 2, 20, 1),
    Sketcher.Constraint("Coincident", 20, 2, 21, 1),
    Sketcher.Constraint("Coincident", 21, 2, 22, 1),
    Sketcher.Constraint("Coincident", 22, 2, 23, 1),
    Sketcher.Constraint("Coincident", 23, 2, 0, 1),
    Sketcher.Constraint("Tangent", 24, 2, 25, 2),
    Sketcher.Constraint("Tangent", 25, 1, 26, 1),
    Sketcher.Constraint("Coincident", 26, 2, 27, 1),
    Sketcher.Constraint("Coincident", 27, 2, 28, 1),
    Sketcher.Constraint("Coincident", 28, 2, 24, 1),
    Sketcher.Constraint("Horizontal", 0),
    Sketcher.Constraint("Vertical", 2),
    Sketcher.Constraint("Horizontal", 3),
    Sketcher.Constraint("Vertical", 5),
    Sketcher.Constraint("Horizontal", 6),
    Sketcher.Constraint("Vertical", 7),
    Sketcher.Constraint("Horizontal", 8),
    Sketcher.Constraint("Vertical", 9),
    Sketcher.Constraint("Horizontal", 10),
    Sketcher.Constraint("Vertical", 11),
    Sketcher.Constraint("Horizontal", 12),
    Sketcher.Constraint("Vertical", 14),
    Sketcher.Constraint("Horizontal", 15),
    Sketcher.Constraint("Vertical", 16),
    Sketcher.Constraint("Horizontal", 17),
    Sketcher.Constraint("Vertical", 18),
    Sketcher.Constraint("Horizontal", 19),
    Sketcher.Constraint("Vertical", 20),
    Sketcher.Constraint("Horizontal", 21),
    Sketcher.Constraint("Vertical", 23),
    Sketcher.Constraint("Vertical", 24),
    Sketcher.Constraint("Horizontal", 26),
    Sketcher.Constraint("Vertical", 27),
    Sketcher.Constraint("Horizontal", 28),
    Sketcher.Constraint("Coincident", 1, 3, -1, 1),
    Sketcher.Constraint("Coincident", 25, 3, 13, 3),
    Sketcher.Constraint("PointOnObject", 0, 2, -1),
    Sketcher.Constraint("PointOnObject", 1, 1, -2),
    Sketcher.Constraint("Parallel", 4, 22),
    Sketcher.Constraint("Horizontal", 25, 3, 7, 2),
    Sketcher.Constraint("Horizontal", 4, 2, 27, 2),
    Sketcher.Constraint("Vertical", 12, 2, 17, 2),
    Sketcher.Constraint("Vertical", 21, 2, 26, 2),
    Sketcher.Constraint("Equal", 10, 15),
    Sketcher.Constraint("Equal", 0, 2),
    Sketcher.Constraint("Equal", 21, 5),
    Sketcher.Constraint("Equal", 19, 7),
    Sketcher.Constraint("Equal", 17, 9),
    Sketcher.Constraint("Equal", 11, 16),
    Sketcher.Constraint("Equal", 8, 18),
    Sketcher.Constraint("Equal", 3, 23),
    Sketcher.Constraint("Equal", 4, 22),
    Sketcher.Constraint("Radius", 25, 3.0),
    Sketcher.Constraint("Radius", 1, 3.4),
    Sketcher.Constraint("Radius", 13, 4.5),
    Sketcher.Constraint("DistanceX", 3, 1, 3, 2, 4.0),
    Sketcher.Constraint("DistanceX", 10, 1, 10, 2, 1.0),
    Sketcher.Constraint("Angle", 4, Q("-45 deg")),
    Sketcher.Constraint("DistanceX", 0, 2, 0, 1, 2.1),
    Sketcher.Constraint("DistanceX", 8, 2, 8, 1, 2.3),
    Sketcher.Constraint("DistanceX", 19, 1, 19, 2, 2.7),
    Sketcher.Constraint("DistanceY", 9, 2, -1, 1, 19.0),
    Sketcher.Constraint("DistanceX", 21, 2, 21, 1, 6.51),
    Sketcher.Constraint("DistanceX", 6, 2, 6, 1, 2.504695),
    Sketcher.Constraint("DistanceY", 14, 1, 14, 2, 11.534405),
])
pad3 = body.newObject("PartDesign::Pad", "Pad002")
pad3.Profile = sketch3
pad3.Length = 154

doc.recompute()
